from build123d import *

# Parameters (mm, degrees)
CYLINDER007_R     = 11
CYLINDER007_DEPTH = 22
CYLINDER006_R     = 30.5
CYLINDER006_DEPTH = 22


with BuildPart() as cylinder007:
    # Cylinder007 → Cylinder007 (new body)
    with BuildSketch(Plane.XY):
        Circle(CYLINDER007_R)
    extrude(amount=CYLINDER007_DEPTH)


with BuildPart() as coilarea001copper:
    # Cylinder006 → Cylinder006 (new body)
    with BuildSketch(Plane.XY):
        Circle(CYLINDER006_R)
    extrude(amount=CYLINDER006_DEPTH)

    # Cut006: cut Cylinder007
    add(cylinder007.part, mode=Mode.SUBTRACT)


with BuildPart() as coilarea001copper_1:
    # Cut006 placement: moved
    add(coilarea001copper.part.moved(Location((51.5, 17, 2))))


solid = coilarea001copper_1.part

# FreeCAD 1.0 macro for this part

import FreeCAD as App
import Part
import Sketcher

V = App.Vector
Q = App.Units.Quantity

doc = App.newDocument("Part")
params = doc.addObject("Spreadsheet::Sheet", "Params")
for row, (alias, value) in enumerate([
    ("sketch1_diameter", "22 mm"),
    ("pad1_length", "22 mm"),
    ("sketch2_diameter", "61 mm"),
    ("pad2_length", "22 mm"),
], start=1):
    params.set(f"A{row}", alias)
    params.set(f"B{row}", "=" + value)
    params.setAlias(f"B{row}", alias)

body = doc.addObject("PartDesign::Body", "Body")

sketch1 = body.newObject("Sketcher::SketchObject", "Sketch")
sketch1.AttachmentSupport = (doc.getObject("XY_Plane"), [""])
sketch1.MapMode = "FlatFace"
sketch1.addGeometry(Part.Circle(V(0, 0, 0), V(0, 0, 1), 11), False)
sketch1.addConstraint(Sketcher.Constraint("Coincident", 0, 3, -1, 1))
sketch1.addConstraint(Sketcher.Constraint("Diameter", 0, Q("22 mm")))
sketch1.setExpression("Constraints[1]", "Params.sketch1_diameter")
pad1 = body.newObject("PartDesign::Pad", "Pad")
pad1.Profile = sketch1
pad1.setExpression("Length", "Params.pad1_length")
body2 = doc.addObject("PartDesign::Body", "Body001")

sketch2 = body2.newObject("Sketcher::SketchObject", "Sketch001")
sketch2.AttachmentSupport = (doc.getObject("XY_Plane001"), [""])
sketch2.MapMode = "FlatFace"
sketch2.addGeometry(Part.Circle(V(0, 0, 0), V(0, 0, 1), 30), False)
sketch2.addConstraint(Sketcher.Constraint("Coincident", 0, 3, -1, 1))
sketch2.addConstraint(Sketcher.Constraint("Diameter", 0, Q("61 mm")))
sketch2.setExpression("Constraints[1]", "Params.sketch2_diameter")
pad2 = body2.newObject("PartDesign::Pad", "Pad001")
pad2.Profile = sketch2
pad2.setExpression("Length", "Params.pad2_length")
doc.recompute()

boolean = body2.newObject("PartDesign::Boolean", "Boolean")
boolean.Type = "Cut"
boolean.addObjects([body])
body3 = doc.addObject("PartDesign::Body", "Body002")
doc.recompute()

body2.Placement = App.Placement(V(51.5, 17, 2), App.Rotation(V(0, 0, 1), 0))
boolean2 = body3.newObject("PartDesign::Boolean", "Boolean001")
boolean2.Type = "Fuse"
boolean2.addObjects([body2])

doc.recompute()
